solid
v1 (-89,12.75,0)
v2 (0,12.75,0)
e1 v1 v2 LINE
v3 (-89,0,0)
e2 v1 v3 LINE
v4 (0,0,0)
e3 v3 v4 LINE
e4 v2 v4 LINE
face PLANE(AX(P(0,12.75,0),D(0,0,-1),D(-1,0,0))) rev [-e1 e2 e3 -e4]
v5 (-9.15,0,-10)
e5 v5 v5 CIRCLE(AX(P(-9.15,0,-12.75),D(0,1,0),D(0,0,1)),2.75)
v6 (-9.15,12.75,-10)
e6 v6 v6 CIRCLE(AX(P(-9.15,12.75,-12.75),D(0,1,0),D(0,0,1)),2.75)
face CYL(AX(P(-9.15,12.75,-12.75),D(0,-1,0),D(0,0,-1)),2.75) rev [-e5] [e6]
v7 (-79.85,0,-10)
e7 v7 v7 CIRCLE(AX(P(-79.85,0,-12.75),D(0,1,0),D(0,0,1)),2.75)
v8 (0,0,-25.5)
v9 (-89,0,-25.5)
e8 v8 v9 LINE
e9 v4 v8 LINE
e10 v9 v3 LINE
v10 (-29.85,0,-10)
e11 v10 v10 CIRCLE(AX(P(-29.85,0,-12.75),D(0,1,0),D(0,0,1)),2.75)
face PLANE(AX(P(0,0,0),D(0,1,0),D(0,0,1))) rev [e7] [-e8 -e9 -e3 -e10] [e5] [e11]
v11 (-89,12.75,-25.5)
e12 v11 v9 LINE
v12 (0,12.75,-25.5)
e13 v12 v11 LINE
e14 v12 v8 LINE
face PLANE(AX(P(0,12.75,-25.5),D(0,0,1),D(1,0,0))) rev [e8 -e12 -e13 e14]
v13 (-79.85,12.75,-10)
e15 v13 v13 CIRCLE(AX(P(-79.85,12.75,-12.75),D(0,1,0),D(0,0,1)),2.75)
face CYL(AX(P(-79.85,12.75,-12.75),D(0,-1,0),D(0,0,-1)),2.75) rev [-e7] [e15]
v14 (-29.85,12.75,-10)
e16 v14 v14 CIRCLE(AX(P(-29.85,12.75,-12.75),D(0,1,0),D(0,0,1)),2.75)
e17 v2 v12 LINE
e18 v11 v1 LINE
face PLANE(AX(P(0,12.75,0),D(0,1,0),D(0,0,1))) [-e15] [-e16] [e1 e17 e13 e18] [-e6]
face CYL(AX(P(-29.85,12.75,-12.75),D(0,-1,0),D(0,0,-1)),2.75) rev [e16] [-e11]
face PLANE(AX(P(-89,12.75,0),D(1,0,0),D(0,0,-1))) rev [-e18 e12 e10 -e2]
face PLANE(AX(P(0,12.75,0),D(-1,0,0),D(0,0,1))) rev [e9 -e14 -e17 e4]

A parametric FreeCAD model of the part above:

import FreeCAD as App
import Part
import Sketcher
from FreeCAD import Vector


def add_polygon(sketch, points):
    """Adds a closed chain of lines whose ends are joined by coincident constraints."""
    first, n = sketch.GeometryCount, len(points)
    for a, b in zip(points, points[1:] + points[:1]):
        sketch.addGeometry(Part.LineSegment(App.Vector(*a, 0), App.Vector(*b, 0)), False)
    for i in range(n):
        sketch.addConstraint(Sketcher.Constraint("Coincident", first + i, 2, first + (i + 1) % n, 1))

doc = App.newDocument("Part")
body = doc.addObject("PartDesign::Body", "Body")

# Sketch on XZ plane
sketch1 = doc.addObject("Sketcher::SketchObject", "Sketch")
body.addObject(sketch1)
sketch1.AttachmentSupport = (doc.XZ_Plane, [""])
sketch1.MapMode = "FlatFace"
add_polygon(sketch1, [(-89, -25.5), (-89, 0), (0, 0), (0, -25.5)])  # lines 0-3
sketch1.addGeometry(Part.Circle(Vector(-79.8, -12.8, 0), Vector(0, 0, 1), 2.8), False)  # 4
sketch1.addGeometry(Part.Circle(Vector(-29.9, -12.8, 0), Vector(0, 0, 1), 2.8), False)  # 5
sketch1.addGeometry(Part.Circle(Vector(-9.2, -12.8, 0), Vector(0, 0, 1), 2.8), False)  # 6
sketch1.addConstraint(Sketcher.Constraint("Vertical", 0))
sketch1.addConstraint(Sketcher.Constraint("Horizontal", 1))
sketch1.addConstraint(Sketcher.Constraint("Vertical", 2))
sketch1.addConstraint(Sketcher.Constraint("Horizontal", 3))
sketch1.addConstraint(Sketcher.Constraint("Coincident", 1, 2, -1, 1))
sketch1.addConstraint(Sketcher.Constraint("Equal", 4, 5))
sketch1.addConstraint(Sketcher.Constraint("Equal", 5, 6))
sketch1.addConstraint(Sketcher.Constraint("Horizontal", 4, 3, 5, 3))
sketch1.addConstraint(Sketcher.Constraint("Horizontal", 5, 3, 6, 3))
sketch1.addConstraint(Sketcher.Constraint("Diameter", 4, 5.5))
sketch1.addConstraint(Sketcher.Constraint("DistanceX", 1, 1, 1, 2, 89.0))
sketch1.addConstraint(Sketcher.Constraint("DistanceY", 0, 1, 0, 2, 25.5))
sketch1.addConstraint(Sketcher.Constraint("DistanceX", 4, 3, 5, 3, 50.0))
sketch1.addConstraint(Sketcher.Constraint("DistanceX", 5, 3, 6, 3, 20.7))
sketch1.addConstraint(Sketcher.Constraint("DistanceX", 4, 3, -1, 1, 79.85))
sketch1.addConstraint(Sketcher.Constraint("DistanceY", 4, 3, -1, 1, 12.75))
pad1 = doc.addObject("PartDesign::Pad", "Pad")
body.addObject(pad1)
pad1.Profile = sketch1
pad1.Length = 12.75
pad1.Reversed = True

doc.recompute()
